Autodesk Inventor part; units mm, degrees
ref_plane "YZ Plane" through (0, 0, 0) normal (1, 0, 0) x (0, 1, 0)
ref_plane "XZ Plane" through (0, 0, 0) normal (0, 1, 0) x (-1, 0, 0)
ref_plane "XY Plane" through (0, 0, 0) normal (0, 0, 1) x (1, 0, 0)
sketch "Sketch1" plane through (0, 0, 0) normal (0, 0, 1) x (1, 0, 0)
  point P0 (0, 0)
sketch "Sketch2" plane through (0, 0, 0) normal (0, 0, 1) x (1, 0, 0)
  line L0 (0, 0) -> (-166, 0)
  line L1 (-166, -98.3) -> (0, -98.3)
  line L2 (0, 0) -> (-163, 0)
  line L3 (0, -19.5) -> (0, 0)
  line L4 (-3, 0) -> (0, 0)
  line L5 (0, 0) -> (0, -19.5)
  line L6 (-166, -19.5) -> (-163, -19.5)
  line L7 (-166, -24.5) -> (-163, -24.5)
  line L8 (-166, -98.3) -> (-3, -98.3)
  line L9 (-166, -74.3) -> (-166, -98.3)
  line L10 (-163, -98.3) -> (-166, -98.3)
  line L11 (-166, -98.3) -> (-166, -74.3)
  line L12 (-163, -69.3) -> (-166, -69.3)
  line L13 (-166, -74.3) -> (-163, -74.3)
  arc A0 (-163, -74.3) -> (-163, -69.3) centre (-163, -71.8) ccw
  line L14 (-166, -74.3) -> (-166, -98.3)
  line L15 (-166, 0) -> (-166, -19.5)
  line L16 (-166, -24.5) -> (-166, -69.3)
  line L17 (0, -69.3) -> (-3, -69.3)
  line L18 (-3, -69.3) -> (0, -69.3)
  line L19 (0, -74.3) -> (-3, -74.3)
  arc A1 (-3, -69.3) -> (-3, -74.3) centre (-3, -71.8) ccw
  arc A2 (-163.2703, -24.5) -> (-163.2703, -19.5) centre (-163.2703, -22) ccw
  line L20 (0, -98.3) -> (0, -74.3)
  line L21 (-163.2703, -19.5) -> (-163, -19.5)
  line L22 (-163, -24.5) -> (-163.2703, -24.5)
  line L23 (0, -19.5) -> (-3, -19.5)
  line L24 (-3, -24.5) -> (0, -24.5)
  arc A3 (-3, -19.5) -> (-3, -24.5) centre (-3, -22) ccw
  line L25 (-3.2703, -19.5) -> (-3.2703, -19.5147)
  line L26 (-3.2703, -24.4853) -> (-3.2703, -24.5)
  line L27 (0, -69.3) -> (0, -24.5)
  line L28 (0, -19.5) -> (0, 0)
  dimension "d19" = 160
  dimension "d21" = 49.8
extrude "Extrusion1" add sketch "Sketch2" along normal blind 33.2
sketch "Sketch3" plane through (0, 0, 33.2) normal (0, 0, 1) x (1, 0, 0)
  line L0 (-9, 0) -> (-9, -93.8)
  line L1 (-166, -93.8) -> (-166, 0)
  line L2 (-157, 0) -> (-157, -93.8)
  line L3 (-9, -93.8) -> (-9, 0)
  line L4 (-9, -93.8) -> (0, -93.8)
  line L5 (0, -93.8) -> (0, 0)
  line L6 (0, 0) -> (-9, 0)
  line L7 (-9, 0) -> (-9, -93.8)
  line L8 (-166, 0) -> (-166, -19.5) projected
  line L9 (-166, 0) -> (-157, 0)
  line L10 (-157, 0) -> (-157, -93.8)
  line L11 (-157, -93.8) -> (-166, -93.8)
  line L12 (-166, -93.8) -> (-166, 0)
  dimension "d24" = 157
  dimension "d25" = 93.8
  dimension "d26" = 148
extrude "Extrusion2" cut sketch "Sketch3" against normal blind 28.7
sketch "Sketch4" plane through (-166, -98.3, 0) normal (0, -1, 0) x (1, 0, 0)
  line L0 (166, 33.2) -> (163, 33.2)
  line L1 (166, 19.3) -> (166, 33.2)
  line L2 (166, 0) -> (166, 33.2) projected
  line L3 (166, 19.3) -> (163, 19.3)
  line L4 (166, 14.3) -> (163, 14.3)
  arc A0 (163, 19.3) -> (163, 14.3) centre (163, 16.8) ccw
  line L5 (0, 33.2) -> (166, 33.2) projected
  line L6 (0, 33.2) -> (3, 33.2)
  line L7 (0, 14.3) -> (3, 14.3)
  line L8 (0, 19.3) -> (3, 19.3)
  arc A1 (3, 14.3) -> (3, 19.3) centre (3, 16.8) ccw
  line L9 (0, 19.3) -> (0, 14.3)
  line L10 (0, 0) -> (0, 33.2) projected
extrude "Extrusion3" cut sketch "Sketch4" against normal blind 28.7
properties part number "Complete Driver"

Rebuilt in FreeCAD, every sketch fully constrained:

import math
import FreeCAD as App
import Part
import Sketcher
from FreeCAD import Vector

doc = App.newDocument("Part")
params = doc.addObject("Spreadsheet::Sheet", "Params")
for row, (alias, value) in enumerate([
    ("sketch1_radius", "2.5 mm"),
    ("sketch1_width", "166 mm"),
    ("sketch1_height", "24 mm"),
    ("sketch1_height2", "19.5 mm"),
    ("pad1_length", "33.2 mm"),
    ("sketch2_height", "93.8 mm"),
    ("pocket1_length", "28.7 mm"),
    ("sketch3_radius", "2.5 mm"),
    ("sketch3_width", "3 mm"),
    ("pocket2_length", "28.7 mm"),
], start=1):
    params.set(f"A{row}", alias)
    params.set(f"B{row}", "=" + value)
    params.setAlias(f"B{row}", alias)

body = doc.addObject("PartDesign::Body", "Body")

sketch1 = body.newObject("Sketcher::SketchObject", "Sketch")
sketch1.AttachmentSupport = (doc.getObject("XY_Plane"), [""])
sketch1.MapMode = "FlatFace"
sketch1.addGeometry(Part.LineSegment(Vector(0, -19.5, 0), Vector(0, 0, 0)), False)
sketch1.addGeometry(Part.LineSegment(Vector(0, 0, 0), Vector(-166, 0, 0)), False)
sketch1.addGeometry(Part.LineSegment(Vector(-166, 0, 0), Vector(-166, -19.5, 0)), False)
sketch1.addGeometry(Part.LineSegment(Vector(-166, -19.5, 0), Vector(-163.2703, -19.5, 0)), False)
sketch1.addGeometry(Part.ArcOfCircle(Part.Circle(Vector(-163.2703, -22, 0), Vector(0, 0, 1), 2.5), math.radians(-90), math.radians(90)), False)
sketch1.addGeometry(Part.LineSegment(Vector(-163.2703, -24.5, 0), Vector(-166, -24.5, 0)), False)
sketch1.addGeometry(Part.LineSegment(Vector(-166, -24.5, 0), Vector(-166, -69.3, 0)), False)
sketch1.addGeometry(Part.LineSegment(Vector(-166, -69.3, 0), Vector(-163, -69.3, 0)), False)
sketch1.addGeometry(Part.ArcOfCircle(Part.Circle(Vector(-163, -71.8, 0), Vector(0, 0, 1), 2.5), math.radians(-90), math.radians(90)), False)
sketch1.addGeometry(Part.LineSegment(Vector(-163, -74.3, 0), Vector(-166, -74.3, 0)), False)
sketch1.addGeometry(Part.LineSegment(Vector(-166, -74.3, 0), Vector(-166, -98.3, 0)), False)
sketch1.addGeometry(Part.LineSegment(Vector(-166, -98.3, 0), Vector(0, -98.3, 0)), False)
sketch1.addGeometry(Part.LineSegment(Vector(0, -98.3, 0), Vector(0, -74.3, 0)), False)
sketch1.addGeometry(Part.LineSegment(Vector(0, -74.3, 0), Vector(-3, -74.3, 0)), False)
sketch1.addGeometry(Part.ArcOfCircle(Part.Circle(Vector(-3, -71.8, 0), Vector(0, 0, 1), 2.5), math.radians(90), math.radians(270)), False)
sketch1.addGeometry(Part.LineSegment(Vector(-3, -69.3, 0), Vector(0, -69.3, 0)), False)
sketch1.addGeometry(Part.LineSegment(Vector(0, -69.3, 0), Vector(0, -24.5, 0)), False)
sketch1.addGeometry(Part.LineSegment(Vector(0, -24.5, 0), Vector(-3, -24.5, 0)), False)
sketch1.addGeometry(Part.ArcOfCircle(Part.Circle(Vector(-3, -22, 0), Vector(0, 0, 1), 2.5), math.radians(90), math.radians(270)), False)
sketch1.addGeometry(Part.LineSegment(Vector(-3, -19.5, 0), Vector(0, -19.5, 0)), False)
sketch1.addConstraint(Sketcher.Constraint("Coincident", 0, 2, 1, 1))
sketch1.addConstraint(Sketcher.Constraint("Coincident", 1, 2, 2, 1))
sketch1.addConstraint(Sketcher.Constraint("Coincident", 2, 2, 3, 1))
sketch1.addConstraint(Sketcher.Constraint("Tangent", 3, 2, 4, 2))
sketch1.addConstraint(Sketcher.Constraint("Tangent", 4, 1, 5, 1))
sketch1.addConstraint(Sketcher.Constraint("Coincident", 5, 2, 6, 1))
sketch1.addConstraint(Sketcher.Constraint("Coincident", 6, 2, 7, 1))
sketch1.addConstraint(Sketcher.Constraint("Tangent", 7, 2, 8, 2))
sketch1.addConstraint(Sketcher.Constraint("Tangent", 8, 1, 9, 1))
sketch1.addConstraint(Sketcher.Constraint("Coincident", 9, 2, 10, 1))
sketch1.addConstraint(Sketcher.Constraint("Coincident", 10, 2, 11, 1))
sketch1.addConstraint(Sketcher.Constraint("Coincident", 11, 2, 12, 1))
sketch1.addConstraint(Sketcher.Constraint("Coincident", 12, 2, 13, 1))
sketch1.addConstraint(Sketcher.Constraint("Tangent", 13, 2, 14, 2))
sketch1.addConstraint(Sketcher.Constraint("Tangent", 14, 1, 15, 1))
sketch1.addConstraint(Sketcher.Constraint("Coincident", 15, 2, 16, 1))
sketch1.addConstraint(Sketcher.Constraint("Coincident", 16, 2, 17, 1))
sketch1.addConstraint(Sketcher.Constraint("Tangent", 17, 2, 18, 2))
sketch1.addConstraint(Sketcher.Constraint("Tangent", 18, 1, 19, 1))
sketch1.addConstraint(Sketcher.Constraint("Coincident", 19, 2, 0, 1))
sketch1.addConstraint(Sketcher.Constraint("Vertical", 0))
sketch1.addConstraint(Sketcher.Constraint("Horizontal", 1))
sketch1.addConstraint(Sketcher.Constraint("Vertical", 2))
sketch1.addConstraint(Sketcher.Constraint("Horizontal", 3))
sketch1.addConstraint(Sketcher.Constraint("Horizontal", 5))
sketch1.addConstraint(Sketcher.Constraint("Vertical", 6))
sketch1.addConstraint(Sketcher.Constraint("Horizontal", 7))
sketch1.addConstraint(Sketcher.Constraint("Horizontal", 9))
sketch1.addConstraint(Sketcher.Constraint("Vertical", 10))
sketch1.addConstraint(Sketcher.Constraint("Horizontal", 11))
sketch1.addConstraint(Sketcher.Constraint("Vertical", 12))
sketch1.addConstraint(Sketcher.Constraint("Horizontal", 13))
sketch1.addConstraint(Sketcher.Constraint("Horizontal", 15))
sketch1.addConstraint(Sketcher.Constraint("Vertical", 16))
sketch1.addConstraint(Sketcher.Constraint("Horizontal", 17))
sketch1.addConstraint(Sketcher.Constraint("Horizontal", 19))
sketch1.addConstraint(Sketcher.Constraint("Coincident", 0, 2, -1, 1))
sketch1.addConstraint(Sketcher.Constraint("Equal", 4, 8))
sketch1.addConstraint(Sketcher.Constraint("Equal", 8, 14))
sketch1.addConstraint(Sketcher.Constraint("Equal", 14, 18))
sketch1.addConstraint(Sketcher.Constraint("PointOnObject", 11, 2, -2))
sketch1.addConstraint(Sketcher.Constraint("PointOnObject", 15, 2, -2))
sketch1.addConstraint(Sketcher.Constraint("Horizontal", 8, 3, 14, 3))
sketch1.addConstraint(Sketcher.Constraint("Horizontal", 4, 3, 18, 3))
sketch1.addConstraint(Sketcher.Constraint("Vertical", 14, 3, 18, 3))
sketch1.addConstraint(Sketcher.Constraint("Vertical", 2, 2, 5, 2))
sketch1.addConstraint(Sketcher.Constraint("Vertical", 6, 2, 9, 2))
sketch1.addConstraint(Sketcher.Constraint("Equal", 9, 13))
sketch1.addConstraint(Sketcher.Constraint("DistanceX", 8, 3, 14, 3, 160.0))
sketch1.addConstraint(Sketcher.Constraint("Radius", 4, 2.5))
sketch1.addConstraint(Sketcher.Constraint("DistanceY", 8, 3, 4, 3, 49.8))
sketch1.addConstraint(Sketcher.Constraint("DistanceX", 1, 2, 1, 1, 166.0))
sketch1.addConstraint(Sketcher.Constraint("DistanceY", 10, 2, 10, 1, 24.0))
sketch1.addConstraint(Sketcher.Constraint("DistanceY", 0, 1, 0, 2, 19.5))
sketch1.addConstraint(Sketcher.Constraint("DistanceX", 3, 1, 3, 2, 2.7297))
sketch1.setExpression("Constraints[49]", "Params.sketch1_radius")
sketch1.setExpression("Constraints[51]", "Params.sketch1_width")
sketch1.setExpression("Constraints[52]", "Params.sketch1_height")
sketch1.setExpression("Constraints[53]", "Params.sketch1_height2")
pad1 = body.newObject("PartDesign::Pad", "Pad")
pad1.Profile = sketch1
pad1.setExpression("Length", "Params.pad1_length")

sketch2 = body.newObject("Sketcher::SketchObject", "Sketch001")
sketch2.AttachmentSupport = (doc.getObject("XY_Plane"), [""])
sketch2.MapMode = "FlatFace"
sketch2.AttachmentOffset = App.Placement(Vector(0, 0, 33.2), App.Rotation())
sketch2.addGeometry(Part.LineSegment(Vector(0, 0, 0), Vector(-9, 0, 0)), False)
sketch2.addGeometry(Part.LineSegment(Vector(-9, 0, 0), Vector(-9, -93.8, 0)), False)
sketch2.addGeometry(Part.LineSegment(Vector(-9, -93.8, 0), Vector(0, -93.8, 0)), False)
sketch2.addGeometry(Part.LineSegment(Vector(0, -93.8, 0), Vector(0, 0, 0)), False)
sketch2.addGeometry(Part.LineSegment(Vector(-166, 0, 0), Vector(-166, -93.8, 0)), False)
sketch2.addGeometry(Part.LineSegment(Vector(-166, -93.8, 0), Vector(-157, -93.8, 0)), False)
sketch2.addGeometry(Part.LineSegment(Vector(-157, -93.8, 0), Vector(-157, 0, 0)), False)
sketch2.addGeometry(Part.LineSegment(Vector(-157, 0, 0), Vector(-166, 0, 0)), False)
sketch2.addConstraint(Sketcher.Constraint("Coincident", 0, 2, 1, 1))
sketch2.addConstraint(Sketcher.Constraint("Coincident", 1, 2, 2, 1))
sketch2.addConstraint(Sketcher.Constraint("Coincident", 2, 2, 3, 1))
sketch2.addConstraint(Sketcher.Constraint("Coincident", 3, 2, 0, 1))
sketch2.addConstraint(Sketcher.Constraint("Coincident", 4, 2, 5, 1))
sketch2.addConstraint(Sketcher.Constraint("Coincident", 5, 2, 6, 1))
sketch2.addConstraint(Sketcher.Constraint("Coincident", 6, 2, 7, 1))
sketch2.addConstraint(Sketcher.Constraint("Coincident", 7, 2, 4, 1))
sketch2.addConstraint(Sketcher.Constraint("Horizontal", 0))
sketch2.addConstraint(Sketcher.Constraint("Vertical", 1))
sketch2.addConstraint(Sketcher.Constraint("Horizontal", 2))
sketch2.addConstraint(Sketcher.Constraint("Vertical", 3))
sketch2.addConstraint(Sketcher.Constraint("Vertical", 4))
sketch2.addConstraint(Sketcher.Constraint("Horizontal", 5))
sketch2.addConstraint(Sketcher.Constraint("Vertical", 6))
sketch2.addConstraint(Sketcher.Constraint("Horizontal", 7))
sketch2.addConstraint(Sketcher.Constraint("Coincident", 3, 2, -1, 1))
sketch2.addConstraint(Sketcher.Constraint("PointOnObject", 6, 2, -1))
sketch2.addConstraint(Sketcher.Constraint("Horizontal", 2, 2, 4, 2))
sketch2.addConstraint(Sketcher.Constraint("Equal", 2, 5))
sketch2.addConstraint(Sketcher.Constraint("DistanceY", 1, 2, 1, 1, 93.8))
sketch2.addConstraint(Sketcher.Constraint("DistanceX", 5, 2, -1, 1, 157.0))
sketch2.addConstraint(Sketcher.Constraint("DistanceX", 5, 2, 1, 2, 148.0))
sketch2.setExpression("Constraints[20]", "Params.sketch2_height")
pocket1 = body.newObject("PartDesign::Pocket", "Pocket")
pocket1.Profile = sketch2
pocket1.setExpression("Length", "Params.pocket1_length")

sketch3 = body.newObject("Sketcher::SketchObject", "Sketch002")
sketch3.AttachmentSupport = (doc.getObject("XZ_Plane"), [""])
sketch3.MapMode = "FlatFace"
sketch3.AttachmentOffset = App.Placement(Vector(0, 0, 98.3), App.Rotation())
sketch3.addGeometry(Part.LineSegment(Vector(-163, 19.3, 0), Vector(-166, 19.3, 0)), False)
sketch3.addGeometry(Part.LineSegment(Vector(-166, 19.3, 0), Vector(-166, 14.3, 0)), False)
sketch3.addGeometry(Part.LineSegment(Vector(-166, 14.3, 0), Vector(-163, 14.3, 0)), False)
sketch3.addGeometry(Part.ArcOfCircle(Part.Circle(Vector(-163, 16.8, 0), Vector(0, 0, 1), 2.5), math.radians(-90), math.radians(90)), False)
sketch3.addGeometry(Part.LineSegment(Vector(0, 14.3, 0), Vector(0, 19.3, 0)), False)
sketch3.addGeometry(Part.LineSegment(Vector(0, 19.3, 0), Vector(-3, 19.3, 0)), False)
sketch3.addGeometry(Part.ArcOfCircle(Part.Circle(Vector(-3, 16.8, 0), Vector(0, 0, 1), 2.5), math.radians(90), math.radians(270)), False)
sketch3.addGeometry(Part.LineSegment(Vector(-3, 14.3, 0), Vector(0, 14.3, 0)), False)
sketch3.addConstraint(Sketcher.Constraint("Coincident", 0, 2, 1, 1))
sketch3.addConstraint(Sketcher.Constraint("Coincident", 1, 2, 2, 1))
sketch3.addConstraint(Sketcher.Constraint("Tangent", 2, 2, 3, 1))
sketch3.addConstraint(Sketcher.Constraint("Tangent", 3, 2, 0, 1))
sketch3.addConstraint(Sketcher.Constraint("Coincident", 4, 2, 5, 1))
sketch3.addConstraint(Sketcher.Constraint("Tangent", 5, 2, 6, 1))
sketch3.addConstraint(Sketcher.Constraint("Tangent", 6, 2, 7, 1))
sketch3.addConstraint(Sketcher.Constraint("Coincident", 7, 2, 4, 1))
sketch3.addConstraint(Sketcher.Constraint("Horizontal", 0))
sketch3.addConstraint(Sketcher.Constraint("Vertical", 1))
sketch3.addConstraint(Sketcher.Constraint("Horizontal", 2))
sketch3.addConstraint(Sketcher.Constraint("Vertical", 4))
sketch3.addConstraint(Sketcher.Constraint("Horizontal", 5))
sketch3.addConstraint(Sketcher.Constraint("Horizontal", 7))
sketch3.addConstraint(Sketcher.Constraint("Equal", 3, 6))
sketch3.addConstraint(Sketcher.Constraint("PointOnObject", 4, 2, -2))
sketch3.addConstraint(Sketcher.Constraint("Horizontal", 3, 3, 6, 3))
sketch3.addConstraint(Sketcher.Constraint("Equal", 2, 5))
sketch3.addConstraint(Sketcher.Constraint("Radius", 3, 2.5))
sketch3.addConstraint(Sketcher.Constraint("DistanceX", 0, 2, 0, 1, 3.0))
sketch3.addConstraint(Sketcher.Constraint("DistanceX", 3, 3, -1, 1, 163.0))
sketch3.addConstraint(Sketcher.Constraint("DistanceY", -1, 1, 3, 3, 16.8))
sketch3.setExpression("Constraints[18]", "Params.sketch3_radius")
sketch3.setExpression("Constraints[19]", "Params.sketch3_width")
pocket2 = body.newObject("PartDesign::Pocket", "Pocket001")
pocket2.Profile = sketch3
pocket2.setExpression("Length", "Params.pocket2_length")

doc.recompute()
